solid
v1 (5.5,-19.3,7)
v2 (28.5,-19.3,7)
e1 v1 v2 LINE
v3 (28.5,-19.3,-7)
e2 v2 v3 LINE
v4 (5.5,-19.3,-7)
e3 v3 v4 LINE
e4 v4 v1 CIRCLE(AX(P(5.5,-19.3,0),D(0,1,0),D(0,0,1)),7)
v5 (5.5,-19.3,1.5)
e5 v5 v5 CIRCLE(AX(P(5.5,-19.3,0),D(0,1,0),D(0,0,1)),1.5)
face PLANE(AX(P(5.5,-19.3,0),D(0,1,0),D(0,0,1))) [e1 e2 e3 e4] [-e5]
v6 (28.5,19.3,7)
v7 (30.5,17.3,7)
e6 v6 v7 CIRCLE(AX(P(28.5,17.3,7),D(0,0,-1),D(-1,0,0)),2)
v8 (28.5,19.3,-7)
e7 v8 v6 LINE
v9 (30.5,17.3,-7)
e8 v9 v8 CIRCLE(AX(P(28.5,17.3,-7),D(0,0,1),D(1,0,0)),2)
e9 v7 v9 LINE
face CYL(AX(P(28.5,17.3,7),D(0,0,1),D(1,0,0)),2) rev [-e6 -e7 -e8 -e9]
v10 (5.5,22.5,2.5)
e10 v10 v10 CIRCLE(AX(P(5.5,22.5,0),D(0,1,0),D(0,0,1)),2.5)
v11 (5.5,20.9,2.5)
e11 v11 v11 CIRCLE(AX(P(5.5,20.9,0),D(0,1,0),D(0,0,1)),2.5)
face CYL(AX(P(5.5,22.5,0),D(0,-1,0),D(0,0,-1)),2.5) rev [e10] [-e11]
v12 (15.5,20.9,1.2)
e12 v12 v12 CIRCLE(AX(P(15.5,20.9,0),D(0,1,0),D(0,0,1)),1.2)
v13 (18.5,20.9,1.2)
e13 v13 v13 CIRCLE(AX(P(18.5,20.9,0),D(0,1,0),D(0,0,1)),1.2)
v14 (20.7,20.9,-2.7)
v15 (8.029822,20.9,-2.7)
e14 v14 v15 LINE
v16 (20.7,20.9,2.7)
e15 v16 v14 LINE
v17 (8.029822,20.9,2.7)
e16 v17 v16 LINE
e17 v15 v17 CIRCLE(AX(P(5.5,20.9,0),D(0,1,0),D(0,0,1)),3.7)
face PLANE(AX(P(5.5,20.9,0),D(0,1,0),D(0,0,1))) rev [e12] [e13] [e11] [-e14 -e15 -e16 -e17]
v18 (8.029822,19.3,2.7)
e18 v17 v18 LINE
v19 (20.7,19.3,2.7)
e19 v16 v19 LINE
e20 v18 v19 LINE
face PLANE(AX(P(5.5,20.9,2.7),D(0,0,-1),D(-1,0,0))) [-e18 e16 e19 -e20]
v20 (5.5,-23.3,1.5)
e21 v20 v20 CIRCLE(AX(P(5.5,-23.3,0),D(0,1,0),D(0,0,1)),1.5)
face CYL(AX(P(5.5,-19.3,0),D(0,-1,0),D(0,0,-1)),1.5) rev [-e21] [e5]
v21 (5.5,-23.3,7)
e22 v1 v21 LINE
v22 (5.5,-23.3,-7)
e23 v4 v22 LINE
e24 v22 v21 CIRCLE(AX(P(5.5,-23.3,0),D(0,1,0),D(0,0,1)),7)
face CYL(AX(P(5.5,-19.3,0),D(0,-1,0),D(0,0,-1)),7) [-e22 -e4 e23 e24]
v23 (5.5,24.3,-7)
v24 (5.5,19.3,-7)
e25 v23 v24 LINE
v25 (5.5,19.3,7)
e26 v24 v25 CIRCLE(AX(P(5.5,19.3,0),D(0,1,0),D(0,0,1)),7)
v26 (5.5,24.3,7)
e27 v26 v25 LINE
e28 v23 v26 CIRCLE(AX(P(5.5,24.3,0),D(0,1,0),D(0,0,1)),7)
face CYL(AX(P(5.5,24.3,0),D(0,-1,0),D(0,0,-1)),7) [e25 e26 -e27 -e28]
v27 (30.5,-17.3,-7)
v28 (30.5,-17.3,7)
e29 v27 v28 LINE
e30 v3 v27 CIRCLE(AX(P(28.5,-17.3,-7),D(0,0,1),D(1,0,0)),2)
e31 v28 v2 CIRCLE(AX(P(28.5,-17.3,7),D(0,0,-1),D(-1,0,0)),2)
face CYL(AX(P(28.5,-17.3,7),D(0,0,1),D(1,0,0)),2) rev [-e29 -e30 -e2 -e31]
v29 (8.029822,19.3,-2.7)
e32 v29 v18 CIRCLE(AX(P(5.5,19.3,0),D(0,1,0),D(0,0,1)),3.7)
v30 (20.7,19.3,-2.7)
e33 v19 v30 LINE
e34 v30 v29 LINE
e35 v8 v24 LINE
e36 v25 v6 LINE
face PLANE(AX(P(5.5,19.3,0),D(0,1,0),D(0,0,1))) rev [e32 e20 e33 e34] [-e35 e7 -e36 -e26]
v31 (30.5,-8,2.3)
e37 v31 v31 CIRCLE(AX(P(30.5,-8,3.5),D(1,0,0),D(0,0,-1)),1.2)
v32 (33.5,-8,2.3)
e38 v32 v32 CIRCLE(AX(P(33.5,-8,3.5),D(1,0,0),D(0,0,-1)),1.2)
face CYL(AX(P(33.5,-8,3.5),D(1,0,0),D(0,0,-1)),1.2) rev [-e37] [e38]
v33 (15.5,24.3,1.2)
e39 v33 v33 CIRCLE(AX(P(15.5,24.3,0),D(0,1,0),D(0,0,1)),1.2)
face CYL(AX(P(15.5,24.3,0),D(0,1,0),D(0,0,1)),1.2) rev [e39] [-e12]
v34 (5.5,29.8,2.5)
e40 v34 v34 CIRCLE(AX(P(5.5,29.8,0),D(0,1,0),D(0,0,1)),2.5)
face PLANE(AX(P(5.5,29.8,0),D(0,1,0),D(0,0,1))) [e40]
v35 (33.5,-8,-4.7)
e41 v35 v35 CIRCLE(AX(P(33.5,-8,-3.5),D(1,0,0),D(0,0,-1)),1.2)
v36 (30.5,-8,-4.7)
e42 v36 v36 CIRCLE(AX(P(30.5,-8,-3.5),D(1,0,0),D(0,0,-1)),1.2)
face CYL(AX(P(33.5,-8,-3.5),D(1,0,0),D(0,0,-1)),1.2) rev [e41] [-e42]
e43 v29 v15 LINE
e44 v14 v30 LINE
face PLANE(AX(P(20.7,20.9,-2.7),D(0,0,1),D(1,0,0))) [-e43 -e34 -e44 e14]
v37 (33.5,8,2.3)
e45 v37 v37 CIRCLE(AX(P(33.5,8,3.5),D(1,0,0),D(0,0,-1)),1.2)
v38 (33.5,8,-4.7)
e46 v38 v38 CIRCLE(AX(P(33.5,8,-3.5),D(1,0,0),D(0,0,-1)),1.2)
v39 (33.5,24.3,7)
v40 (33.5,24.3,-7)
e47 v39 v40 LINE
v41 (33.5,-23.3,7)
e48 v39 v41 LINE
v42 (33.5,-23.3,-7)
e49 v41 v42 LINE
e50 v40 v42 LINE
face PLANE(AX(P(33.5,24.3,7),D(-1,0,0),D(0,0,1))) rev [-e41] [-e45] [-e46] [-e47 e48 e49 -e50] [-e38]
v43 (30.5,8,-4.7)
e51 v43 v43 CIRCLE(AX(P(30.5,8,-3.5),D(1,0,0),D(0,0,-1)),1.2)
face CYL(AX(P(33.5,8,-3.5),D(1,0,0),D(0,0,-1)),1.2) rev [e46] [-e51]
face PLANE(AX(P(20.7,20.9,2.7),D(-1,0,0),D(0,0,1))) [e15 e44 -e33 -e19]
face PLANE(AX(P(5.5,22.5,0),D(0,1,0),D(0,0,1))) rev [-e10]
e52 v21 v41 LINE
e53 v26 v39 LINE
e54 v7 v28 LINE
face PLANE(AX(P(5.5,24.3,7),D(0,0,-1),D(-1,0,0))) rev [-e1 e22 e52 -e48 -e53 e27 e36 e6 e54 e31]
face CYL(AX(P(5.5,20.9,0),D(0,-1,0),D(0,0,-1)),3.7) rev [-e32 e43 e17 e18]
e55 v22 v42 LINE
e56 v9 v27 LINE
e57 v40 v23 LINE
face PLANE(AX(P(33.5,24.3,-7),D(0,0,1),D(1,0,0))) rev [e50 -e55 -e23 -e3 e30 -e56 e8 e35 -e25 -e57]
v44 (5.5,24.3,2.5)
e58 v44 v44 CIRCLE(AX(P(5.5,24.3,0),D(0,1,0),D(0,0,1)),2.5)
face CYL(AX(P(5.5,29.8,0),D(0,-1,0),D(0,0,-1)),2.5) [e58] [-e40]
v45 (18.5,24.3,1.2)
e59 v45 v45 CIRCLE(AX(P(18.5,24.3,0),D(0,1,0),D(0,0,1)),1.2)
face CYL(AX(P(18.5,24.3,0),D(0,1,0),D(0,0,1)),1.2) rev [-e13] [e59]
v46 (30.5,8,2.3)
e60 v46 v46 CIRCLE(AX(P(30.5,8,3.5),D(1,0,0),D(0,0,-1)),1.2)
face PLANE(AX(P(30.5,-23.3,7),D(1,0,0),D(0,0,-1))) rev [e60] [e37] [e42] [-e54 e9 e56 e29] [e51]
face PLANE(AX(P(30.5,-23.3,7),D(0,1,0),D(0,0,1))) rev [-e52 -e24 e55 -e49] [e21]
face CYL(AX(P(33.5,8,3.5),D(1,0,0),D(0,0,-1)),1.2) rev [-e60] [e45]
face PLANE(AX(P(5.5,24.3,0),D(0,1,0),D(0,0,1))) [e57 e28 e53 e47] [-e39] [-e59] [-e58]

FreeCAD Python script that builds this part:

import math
import FreeCAD as App
import Part
import Sketcher
Q = App.Units.Quantity


def edges_at(feature, points):
    """Names of the edges that pass closest to the given points."""
    edges = feature.Shape.Edges
    near = lambda p: min(range(len(edges)), key=lambda i: edges[i].distToShape(Part.Vertex(*p))[0])
    return sorted({f"Edge{near(p) + 1}" for p in points})


def add_polygon(sketch, points):
    """Adds a closed chain of lines whose ends are joined by coincident constraints."""
    first, n = sketch.GeometryCount, len(points)
    for a, b in zip(points, points[1:] + points[:1]):
        sketch.addGeometry(Part.LineSegment(App.Vector(*a, 0), App.Vector(*b, 0)), False)
    for i in range(n):
        sketch.addConstraint(Sketcher.Constraint("Coincident", first + i, 2, first + (i + 1) % n, 1))

doc = App.newDocument("Part")
body = doc.addObject("PartDesign::Body", "Body")

# Sketch on XZ plane
sketch1 = body.newObject("Sketcher::SketchObject", "Sketch")
sketch1.AttachmentSupport = (doc.getObject("XZ_Plane"), [""])
sketch1.MapMode = "FlatFace"
sketch1.AttachmentOffset = App.Placement(App.Vector(0, 0, -19.3), App.Rotation())
sketch1.addGeometry([
    Part.LineSegment(App.Vector(5.5, 7, 0), App.Vector(33.5, 7, 0)),
    Part.LineSegment(App.Vector(33.5, 7, 0), App.Vector(33.5, -7, 0)),
    Part.LineSegment(App.Vector(33.5, -7, 0), App.Vector(5.5, -7, 0)),
    Part.ArcOfCircle(Part.Circle(App.Vector(5.5, 0, 0), App.Vector(0, 0, 1), 7), math.radians(90), math.radians(270)),
], False)
sketch1.addConstraint([
    Sketcher.Constraint("Coincident", 0, 2, 1, 1),
    Sketcher.Constraint("Coincident", 1, 2, 2, 1),
    Sketcher.Constraint("Tangent", 2, 2, 3, 2),
    Sketcher.Constraint("Tangent", 3, 1, 0, 1),
    Sketcher.Constraint("Horizontal", 0),
    Sketcher.Constraint("Vertical", 1),
    Sketcher.Constraint("Horizontal", 2),
    Sketcher.Constraint("PointOnObject", 3, 3, -1),
    Sketcher.Constraint("Radius", 3, Q("7 mm")),
    Sketcher.Constraint("DistanceX", 0, 1, 0, 2, Q("28 mm")),
    Sketcher.Constraint("DistanceX", -1, 1, 3, 3, Q("5.5 mm")),
])
pad1 = body.newObject("PartDesign::Pad", "Pad")
pad1.Profile = sketch1
pad1.Length = 5
pad1.Reversed = True
body2 = doc.addObject("PartDesign::Body", "Body001")

# Sketch on XZ plane
sketch2 = body2.newObject("Sketcher::SketchObject", "Sketch001")
sketch2.AttachmentSupport = (doc.getObject("XZ_Plane001"), [""])
sketch2.MapMode = "FlatFace"
sketch2.AttachmentOffset = App.Placement(App.Vector(0, 0, 23.3), App.Rotation())
sketch2.addGeometry([
    Part.LineSegment(App.Vector(5.5, 7, 0), App.Vector(33.5, 7, 0)),
    Part.LineSegment(App.Vector(33.5, 7, 0), App.Vector(33.5, -7, 0)),
    Part.LineSegment(App.Vector(33.5, -7, 0), App.Vector(5.5, -7, 0)),
    Part.ArcOfCircle(Part.Circle(App.Vector(5.5, 0, 0), App.Vector(0, 0, 1), 7), math.radians(90), math.radians(270)),
], False)
sketch2.addConstraint([
    Sketcher.Constraint("Coincident", 0, 2, 1, 1),
    Sketcher.Constraint("Coincident", 1, 2, 2, 1),
    Sketcher.Constraint("Tangent", 2, 2, 3, 2),
    Sketcher.Constraint("Tangent", 3, 1, 0, 1),
    Sketcher.Constraint("Horizontal", 0),
    Sketcher.Constraint("Vertical", 1),
    Sketcher.Constraint("Horizontal", 2),
    Sketcher.Constraint("PointOnObject", 3, 3, -1),
    Sketcher.Constraint("Radius", 3, Q("7 mm")),
    Sketcher.Constraint("DistanceX", 0, 1, 0, 2, Q("28 mm")),
    Sketcher.Constraint("DistanceX", -1, 1, 3, 3, Q("5.5 mm")),
])
pad2 = body2.newObject("PartDesign::Pad", "Pad001")
pad2.Profile = sketch2
pad2.Length = 4
pad2.Reversed = True
body.AllowCompound = True
doc.recompute()

boolean = body.newObject("PartDesign::Boolean", "Boolean")
boolean.Type = "Fuse"
boolean.addObjects([body2])

# Sketch on XY plane
sketch3 = body.newObject("Sketcher::SketchObject", "Sketch002")
sketch3.AttachmentSupport = (doc.getObject("XY_Plane"), [""])
sketch3.MapMode = "FlatFace"
add_polygon(sketch3, [(30.5, 24.3), (30.5, -23.3), (33.5, -23.3), (33.5, 24.3)])  # lines 0-3
sketch3.addConstraint([
    Sketcher.Constraint("Vertical", 0),
    Sketcher.Constraint("Horizontal", 1),
    Sketcher.Constraint("Vertical", 2),
    Sketcher.Constraint("Horizontal", 3),
    Sketcher.Constraint("DistanceX", 1, 1, 1, 2, Q("3 mm")),
    Sketcher.Constraint("DistanceY", 0, 2, 0, 1, Q("47.6 mm")),
    Sketcher.Constraint("DistanceX", -1, 1, 0, 2, Q("30.5 mm")),
    Sketcher.Constraint("DistanceY", 0, 2, -1, 1, Q("23.3 mm")),
])
pad3 = body.newObject("PartDesign::Pad", "Pad002")
pad3.Profile = sketch3
pad3.Length = 14
pad3.Midplane = True

# Sketch on XZ plane
sketch4 = body.newObject("Sketcher::SketchObject", "Sketch003")
sketch4.AttachmentSupport = (doc.getObject("XZ_Plane"), [""])
sketch4.MapMode = "FlatFace"
sketch4.AttachmentOffset = App.Placement(App.Vector(0, 0, -24.3), App.Rotation())
sketch4.addGeometry(Part.Circle(App.Vector(5.5, 0, 0), App.Vector(0, 0, 1), 2.5), False)
sketch4.addConstraint([
    Sketcher.Constraint("PointOnObject", 0, 3, -1),
    Sketcher.Constraint("Diameter", 0, Q("5 mm")),
    Sketcher.Constraint("DistanceX", -1, 1, 0, 3, Q("5.5 mm")),
])
pad4 = body.newObject("PartDesign::Pad", "Pad003")
pad4.Profile = sketch4
pad4.Length = 5.5
pad4.Reversed = True

# Sketch on XZ plane
sketch5 = body.newObject("Sketcher::SketchObject", "Sketch004")
sketch5.AttachmentSupport = (doc.getObject("XZ_Plane"), [""])
sketch5.MapMode = "FlatFace"
sketch5.AttachmentOffset = App.Placement(App.Vector(0, 0, -19.3), App.Rotation())
sketch5.addGeometry(Part.Circle(App.Vector(5.5, 0, 0), App.Vector(0, 0, 1), 3.7), False)
sketch5.addConstraint([
    Sketcher.Constraint("PointOnObject", 0, 3, -1),
    Sketcher.Constraint("Diameter", 0, Q("7.4 mm")),
    Sketcher.Constraint("DistanceX", -1, 1, 0, 3, Q("5.5 mm")),
])
pocket1 = body.newObject("PartDesign::Pocket", "Pocket")
pocket1.Profile = sketch5
pocket1.Length = 1.6

# Sketch on XZ plane
sketch6 = body.newObject("Sketcher::SketchObject", "Sketch005")
sketch6.AttachmentSupport = (doc.getObject("XZ_Plane"), [""])
sketch6.MapMode = "FlatFace"
sketch6.AttachmentOffset = App.Placement(App.Vector(0, 0, -19.3), App.Rotation())
sketch6.addGeometry([
    Part.LineSegment(App.Vector(5.5, 2.7, 0), App.Vector(20.7, 2.7, 0)),
    Part.LineSegment(App.Vector(20.7, 2.7, 0), App.Vector(20.7, -2.7, 0)),
    Part.LineSegment(App.Vector(20.7, -2.7, 0), App.Vector(5.5, -2.7, 0)),
    Part.ArcOfCircle(Part.Circle(App.Vector(5.5, 0, 0), App.Vector(0, 0, 1), 2.7), math.radians(90), math.radians(270)),
], False)
sketch6.addConstraint([
    Sketcher.Constraint("Coincident", 0, 2, 1, 1),
    Sketcher.Constraint("Coincident", 1, 2, 2, 1),
    Sketcher.Constraint("Tangent", 2, 2, 3, 2),
    Sketcher.Constraint("Tangent", 3, 1, 0, 1),
    Sketcher.Constraint("Horizontal", 0),
    Sketcher.Constraint("Vertical", 1),
    Sketcher.Constraint("Horizontal", 2),
    Sketcher.Constraint("PointOnObject", 3, 3, -1),
    Sketcher.Constraint("Radius", 3, Q("2.7 mm")),
    Sketcher.Constraint("DistanceX", 0, 1, 0, 2, Q("15.2 mm")),
    Sketcher.Constraint("DistanceX", -1, 1, 3, 3, Q("5.5 mm")),
])
pocket2 = body.newObject("PartDesign::Pocket", "Pocket001")
pocket2.Profile = sketch6
pocket2.Length = 1.6

# Sketch on XZ plane
sketch7 = body.newObject("Sketcher::SketchObject", "Sketch006")
sketch7.AttachmentSupport = (doc.getObject("XZ_Plane"), [""])
sketch7.MapMode = "FlatFace"
sketch7.AttachmentOffset = App.Placement(App.Vector(0, 0, -20.9), App.Rotation())
sketch7.addGeometry(Part.Circle(App.Vector(5.5, 0, 0), App.Vector(0, 0, 1), 2.5), False)
sketch7.addConstraint([
    Sketcher.Constraint("PointOnObject", 0, 3, -1),
    Sketcher.Constraint("Diameter", 0, Q("5 mm")),
    Sketcher.Constraint("DistanceX", -1, 1, 0, 3, Q("5.5 mm")),
])
pocket3 = body.newObject("PartDesign::Pocket", "Pocket002")
pocket3.Profile = sketch7
pocket3.Length = 1.6

# Sketch on XZ plane
sketch8 = body.newObject("Sketcher::SketchObject", "Sketch007")
sketch8.AttachmentSupport = (doc.getObject("XZ_Plane"), [""])
sketch8.MapMode = "FlatFace"
sketch8.AttachmentOffset = App.Placement(App.Vector(0, 0, 23.3), App.Rotation())
sketch8.addGeometry(Part.Circle(App.Vector(5.5, 0, 0), App.Vector(0, 0, 1), 1.5), False)
sketch8.addConstraint([
    Sketcher.Constraint("PointOnObject", 0, 3, -1),
    Sketcher.Constraint("Diameter", 0, Q("3 mm")),
    Sketcher.Constraint("DistanceX", -1, 1, 0, 3, Q("5.5 mm")),
])
pocket4 = body.newObject("PartDesign::Pocket", "Pocket003")
pocket4.Profile = sketch8
pocket4.Length = 4

# Sketch on XZ plane
sketch9 = body.newObject("Sketcher::SketchObject", "Sketch008")
sketch9.AttachmentSupport = (doc.getObject("XZ_Plane"), [""])
sketch9.MapMode = "FlatFace"
sketch9.AttachmentOffset = App.Placement(App.Vector(0, 0, -24.3), App.Rotation())
sketch9.addGeometry(Part.Circle(App.Vector(15.5, 0, 0), App.Vector(0, 0, 1), 1.2), False)
sketch9.addConstraint([
    Sketcher.Constraint("PointOnObject", 0, 3, -1),
    Sketcher.Constraint("Diameter", 0, Q("2.4 mm")),
    Sketcher.Constraint("DistanceX", -1, 1, 0, 3, Q("15.5 mm")),
])
doc.recompute()
hole = body.newObject("PartDesign::Hole", "Hole")
hole.Profile = sketch9
hole.ThreadType = "None"
hole.Diameter = 2.4
hole.DepthType = "Dimension"
hole.Depth = 5
hole.DrillPoint = "Angled"
hole.DrillPointAngle = 118
hole.Reversed = True

# Sketch on XZ plane
sketch10 = body.newObject("Sketcher::SketchObject", "Sketch009")
sketch10.AttachmentSupport = (doc.getObject("XZ_Plane"), [""])
sketch10.MapMode = "FlatFace"
sketch10.AttachmentOffset = App.Placement(App.Vector(0, 0, -24.3), App.Rotation())
sketch10.addGeometry(Part.Circle(App.Vector(18.5, 0, 0), App.Vector(0, 0, 1), 1.2), False)
sketch10.addConstraint([
    Sketcher.Constraint("PointOnObject", 0, 3, -1),
    Sketcher.Constraint("Diameter", 0, Q("2.4 mm")),
    Sketcher.Constraint("DistanceX", -1, 1, 0, 3, Q("18.5 mm")),
])
doc.recompute()
hole2 = body.newObject("PartDesign::Hole", "Hole001")
hole2.Profile = sketch10
hole2.ThreadType = "None"
hole2.Diameter = 2.4
hole2.DepthType = "Dimension"
hole2.Depth = 5
hole2.DrillPoint = "Angled"
hole2.DrillPointAngle = 118
hole2.Reversed = True

# Sketch on YZ plane
sketch11 = body.newObject("Sketcher::SketchObject", "Sketch010")
sketch11.AttachmentSupport = (doc.getObject("YZ_Plane"), [""])
sketch11.MapMode = "FlatFace"
sketch11.AttachmentOffset = App.Placement(App.Vector(0, 0, 33.5), App.Rotation())
sketch11.addGeometry(Part.Circle(App.Vector(-8, -3.5, 0), App.Vector(0, 0, 1), 1.2), False)
sketch11.addConstraint([
    Sketcher.Constraint("Diameter", 0, Q("2.4 mm")),
    Sketcher.Constraint("DistanceX", 0, 3, -1, 1, Q("8 mm")),
    Sketcher.Constraint("DistanceY", 0, 3, -1, 1, Q("3.5 mm")),
])
doc.recompute()
hole3 = body.newObject("PartDesign::Hole", "Hole002")
hole3.Profile = sketch11
hole3.ThreadType = "None"
hole3.Diameter = 2.4
hole3.DepthType = "Dimension"
hole3.Depth = 35
hole3.DrillPoint = "Flat"

# Sketch on YZ plane
sketch12 = body.newObject("Sketcher::SketchObject", "Sketch011")
sketch12.AttachmentSupport = (doc.getObject("YZ_Plane"), [""])
sketch12.MapMode = "FlatFace"
sketch12.AttachmentOffset = App.Placement(App.Vector(0, 0, 33.5), App.Rotation())
sketch12.addGeometry(Part.Circle(App.Vector(-8, 3.5, 0), App.Vector(0, 0, 1), 1.2), False)
sketch12.addConstraint([
    Sketcher.Constraint("Diameter", 0, Q("2.4 mm")),
    Sketcher.Constraint("DistanceX", 0, 3, -1, 1, Q("8 mm")),
    Sketcher.Constraint("DistanceY", -1, 1, 0, 3, Q("3.5 mm")),
])
doc.recompute()
hole4 = body.newObject("PartDesign::Hole", "Hole003")
hole4.Profile = sketch12
hole4.ThreadType = "None"
hole4.Diameter = 2.4
hole4.DepthType = "Dimension"
hole4.Depth = 35
hole4.DrillPoint = "Flat"

# Sketch on YZ plane
sketch13 = body.newObject("Sketcher::SketchObject", "Sketch012")
sketch13.AttachmentSupport = (doc.getObject("YZ_Plane"), [""])
sketch13.MapMode = "FlatFace"
sketch13.AttachmentOffset = App.Placement(App.Vector(0, 0, 33.5), App.Rotation())
sketch13.addGeometry(Part.Circle(App.Vector(8, -3.5, 0), App.Vector(0, 0, 1), 1.2), False)
sketch13.addConstraint([
    Sketcher.Constraint("Diameter", 0, Q("2.4 mm")),
    Sketcher.Constraint("DistanceX", -1, 1, 0, 3, Q("8 mm")),
    Sketcher.Constraint("DistanceY", 0, 3, -1, 1, Q("3.5 mm")),
])
doc.recompute()
hole5 = body.newObject("PartDesign::Hole", "Hole004")
hole5.Profile = sketch13
hole5.ThreadType = "None"
hole5.Diameter = 2.4
hole5.DepthType = "Dimension"
hole5.Depth = 35
hole5.DrillPoint = "Flat"

# Sketch on YZ plane
sketch14 = body.newObject("Sketcher::SketchObject", "Sketch013")
sketch14.AttachmentSupport = (doc.getObject("YZ_Plane"), [""])
sketch14.MapMode = "FlatFace"
sketch14.AttachmentOffset = App.Placement(App.Vector(0, 0, 33.5), App.Rotation())
sketch14.addGeometry(Part.Circle(App.Vector(8, 3.5, 0), App.Vector(0, 0, 1), 1.2), False)
sketch14.addConstraint([
    Sketcher.Constraint("Diameter", 0, Q("2.4 mm")),
    Sketcher.Constraint("DistanceX", -1, 1, 0, 3, Q("8 mm")),
    Sketcher.Constraint("DistanceY", -1, 1, 0, 3, Q("3.5 mm")),
])
doc.recompute()
hole6 = body.newObject("PartDesign::Hole", "Hole005")
hole6.Profile = sketch14
hole6.ThreadType = "None"
hole6.Diameter = 2.4
hole6.DepthType = "Dimension"
hole6.Depth = 35
hole6.DrillPoint = "Flat"
doc.recompute()

fillet = body.newObject("PartDesign::Fillet", "Fillet")
fillet.Base = (hole6, edges_at(hole6, [(30.5, 19.3, 0), (30.5, -19.3, 0)]))
fillet.Radius = 2

doc.recompute()
